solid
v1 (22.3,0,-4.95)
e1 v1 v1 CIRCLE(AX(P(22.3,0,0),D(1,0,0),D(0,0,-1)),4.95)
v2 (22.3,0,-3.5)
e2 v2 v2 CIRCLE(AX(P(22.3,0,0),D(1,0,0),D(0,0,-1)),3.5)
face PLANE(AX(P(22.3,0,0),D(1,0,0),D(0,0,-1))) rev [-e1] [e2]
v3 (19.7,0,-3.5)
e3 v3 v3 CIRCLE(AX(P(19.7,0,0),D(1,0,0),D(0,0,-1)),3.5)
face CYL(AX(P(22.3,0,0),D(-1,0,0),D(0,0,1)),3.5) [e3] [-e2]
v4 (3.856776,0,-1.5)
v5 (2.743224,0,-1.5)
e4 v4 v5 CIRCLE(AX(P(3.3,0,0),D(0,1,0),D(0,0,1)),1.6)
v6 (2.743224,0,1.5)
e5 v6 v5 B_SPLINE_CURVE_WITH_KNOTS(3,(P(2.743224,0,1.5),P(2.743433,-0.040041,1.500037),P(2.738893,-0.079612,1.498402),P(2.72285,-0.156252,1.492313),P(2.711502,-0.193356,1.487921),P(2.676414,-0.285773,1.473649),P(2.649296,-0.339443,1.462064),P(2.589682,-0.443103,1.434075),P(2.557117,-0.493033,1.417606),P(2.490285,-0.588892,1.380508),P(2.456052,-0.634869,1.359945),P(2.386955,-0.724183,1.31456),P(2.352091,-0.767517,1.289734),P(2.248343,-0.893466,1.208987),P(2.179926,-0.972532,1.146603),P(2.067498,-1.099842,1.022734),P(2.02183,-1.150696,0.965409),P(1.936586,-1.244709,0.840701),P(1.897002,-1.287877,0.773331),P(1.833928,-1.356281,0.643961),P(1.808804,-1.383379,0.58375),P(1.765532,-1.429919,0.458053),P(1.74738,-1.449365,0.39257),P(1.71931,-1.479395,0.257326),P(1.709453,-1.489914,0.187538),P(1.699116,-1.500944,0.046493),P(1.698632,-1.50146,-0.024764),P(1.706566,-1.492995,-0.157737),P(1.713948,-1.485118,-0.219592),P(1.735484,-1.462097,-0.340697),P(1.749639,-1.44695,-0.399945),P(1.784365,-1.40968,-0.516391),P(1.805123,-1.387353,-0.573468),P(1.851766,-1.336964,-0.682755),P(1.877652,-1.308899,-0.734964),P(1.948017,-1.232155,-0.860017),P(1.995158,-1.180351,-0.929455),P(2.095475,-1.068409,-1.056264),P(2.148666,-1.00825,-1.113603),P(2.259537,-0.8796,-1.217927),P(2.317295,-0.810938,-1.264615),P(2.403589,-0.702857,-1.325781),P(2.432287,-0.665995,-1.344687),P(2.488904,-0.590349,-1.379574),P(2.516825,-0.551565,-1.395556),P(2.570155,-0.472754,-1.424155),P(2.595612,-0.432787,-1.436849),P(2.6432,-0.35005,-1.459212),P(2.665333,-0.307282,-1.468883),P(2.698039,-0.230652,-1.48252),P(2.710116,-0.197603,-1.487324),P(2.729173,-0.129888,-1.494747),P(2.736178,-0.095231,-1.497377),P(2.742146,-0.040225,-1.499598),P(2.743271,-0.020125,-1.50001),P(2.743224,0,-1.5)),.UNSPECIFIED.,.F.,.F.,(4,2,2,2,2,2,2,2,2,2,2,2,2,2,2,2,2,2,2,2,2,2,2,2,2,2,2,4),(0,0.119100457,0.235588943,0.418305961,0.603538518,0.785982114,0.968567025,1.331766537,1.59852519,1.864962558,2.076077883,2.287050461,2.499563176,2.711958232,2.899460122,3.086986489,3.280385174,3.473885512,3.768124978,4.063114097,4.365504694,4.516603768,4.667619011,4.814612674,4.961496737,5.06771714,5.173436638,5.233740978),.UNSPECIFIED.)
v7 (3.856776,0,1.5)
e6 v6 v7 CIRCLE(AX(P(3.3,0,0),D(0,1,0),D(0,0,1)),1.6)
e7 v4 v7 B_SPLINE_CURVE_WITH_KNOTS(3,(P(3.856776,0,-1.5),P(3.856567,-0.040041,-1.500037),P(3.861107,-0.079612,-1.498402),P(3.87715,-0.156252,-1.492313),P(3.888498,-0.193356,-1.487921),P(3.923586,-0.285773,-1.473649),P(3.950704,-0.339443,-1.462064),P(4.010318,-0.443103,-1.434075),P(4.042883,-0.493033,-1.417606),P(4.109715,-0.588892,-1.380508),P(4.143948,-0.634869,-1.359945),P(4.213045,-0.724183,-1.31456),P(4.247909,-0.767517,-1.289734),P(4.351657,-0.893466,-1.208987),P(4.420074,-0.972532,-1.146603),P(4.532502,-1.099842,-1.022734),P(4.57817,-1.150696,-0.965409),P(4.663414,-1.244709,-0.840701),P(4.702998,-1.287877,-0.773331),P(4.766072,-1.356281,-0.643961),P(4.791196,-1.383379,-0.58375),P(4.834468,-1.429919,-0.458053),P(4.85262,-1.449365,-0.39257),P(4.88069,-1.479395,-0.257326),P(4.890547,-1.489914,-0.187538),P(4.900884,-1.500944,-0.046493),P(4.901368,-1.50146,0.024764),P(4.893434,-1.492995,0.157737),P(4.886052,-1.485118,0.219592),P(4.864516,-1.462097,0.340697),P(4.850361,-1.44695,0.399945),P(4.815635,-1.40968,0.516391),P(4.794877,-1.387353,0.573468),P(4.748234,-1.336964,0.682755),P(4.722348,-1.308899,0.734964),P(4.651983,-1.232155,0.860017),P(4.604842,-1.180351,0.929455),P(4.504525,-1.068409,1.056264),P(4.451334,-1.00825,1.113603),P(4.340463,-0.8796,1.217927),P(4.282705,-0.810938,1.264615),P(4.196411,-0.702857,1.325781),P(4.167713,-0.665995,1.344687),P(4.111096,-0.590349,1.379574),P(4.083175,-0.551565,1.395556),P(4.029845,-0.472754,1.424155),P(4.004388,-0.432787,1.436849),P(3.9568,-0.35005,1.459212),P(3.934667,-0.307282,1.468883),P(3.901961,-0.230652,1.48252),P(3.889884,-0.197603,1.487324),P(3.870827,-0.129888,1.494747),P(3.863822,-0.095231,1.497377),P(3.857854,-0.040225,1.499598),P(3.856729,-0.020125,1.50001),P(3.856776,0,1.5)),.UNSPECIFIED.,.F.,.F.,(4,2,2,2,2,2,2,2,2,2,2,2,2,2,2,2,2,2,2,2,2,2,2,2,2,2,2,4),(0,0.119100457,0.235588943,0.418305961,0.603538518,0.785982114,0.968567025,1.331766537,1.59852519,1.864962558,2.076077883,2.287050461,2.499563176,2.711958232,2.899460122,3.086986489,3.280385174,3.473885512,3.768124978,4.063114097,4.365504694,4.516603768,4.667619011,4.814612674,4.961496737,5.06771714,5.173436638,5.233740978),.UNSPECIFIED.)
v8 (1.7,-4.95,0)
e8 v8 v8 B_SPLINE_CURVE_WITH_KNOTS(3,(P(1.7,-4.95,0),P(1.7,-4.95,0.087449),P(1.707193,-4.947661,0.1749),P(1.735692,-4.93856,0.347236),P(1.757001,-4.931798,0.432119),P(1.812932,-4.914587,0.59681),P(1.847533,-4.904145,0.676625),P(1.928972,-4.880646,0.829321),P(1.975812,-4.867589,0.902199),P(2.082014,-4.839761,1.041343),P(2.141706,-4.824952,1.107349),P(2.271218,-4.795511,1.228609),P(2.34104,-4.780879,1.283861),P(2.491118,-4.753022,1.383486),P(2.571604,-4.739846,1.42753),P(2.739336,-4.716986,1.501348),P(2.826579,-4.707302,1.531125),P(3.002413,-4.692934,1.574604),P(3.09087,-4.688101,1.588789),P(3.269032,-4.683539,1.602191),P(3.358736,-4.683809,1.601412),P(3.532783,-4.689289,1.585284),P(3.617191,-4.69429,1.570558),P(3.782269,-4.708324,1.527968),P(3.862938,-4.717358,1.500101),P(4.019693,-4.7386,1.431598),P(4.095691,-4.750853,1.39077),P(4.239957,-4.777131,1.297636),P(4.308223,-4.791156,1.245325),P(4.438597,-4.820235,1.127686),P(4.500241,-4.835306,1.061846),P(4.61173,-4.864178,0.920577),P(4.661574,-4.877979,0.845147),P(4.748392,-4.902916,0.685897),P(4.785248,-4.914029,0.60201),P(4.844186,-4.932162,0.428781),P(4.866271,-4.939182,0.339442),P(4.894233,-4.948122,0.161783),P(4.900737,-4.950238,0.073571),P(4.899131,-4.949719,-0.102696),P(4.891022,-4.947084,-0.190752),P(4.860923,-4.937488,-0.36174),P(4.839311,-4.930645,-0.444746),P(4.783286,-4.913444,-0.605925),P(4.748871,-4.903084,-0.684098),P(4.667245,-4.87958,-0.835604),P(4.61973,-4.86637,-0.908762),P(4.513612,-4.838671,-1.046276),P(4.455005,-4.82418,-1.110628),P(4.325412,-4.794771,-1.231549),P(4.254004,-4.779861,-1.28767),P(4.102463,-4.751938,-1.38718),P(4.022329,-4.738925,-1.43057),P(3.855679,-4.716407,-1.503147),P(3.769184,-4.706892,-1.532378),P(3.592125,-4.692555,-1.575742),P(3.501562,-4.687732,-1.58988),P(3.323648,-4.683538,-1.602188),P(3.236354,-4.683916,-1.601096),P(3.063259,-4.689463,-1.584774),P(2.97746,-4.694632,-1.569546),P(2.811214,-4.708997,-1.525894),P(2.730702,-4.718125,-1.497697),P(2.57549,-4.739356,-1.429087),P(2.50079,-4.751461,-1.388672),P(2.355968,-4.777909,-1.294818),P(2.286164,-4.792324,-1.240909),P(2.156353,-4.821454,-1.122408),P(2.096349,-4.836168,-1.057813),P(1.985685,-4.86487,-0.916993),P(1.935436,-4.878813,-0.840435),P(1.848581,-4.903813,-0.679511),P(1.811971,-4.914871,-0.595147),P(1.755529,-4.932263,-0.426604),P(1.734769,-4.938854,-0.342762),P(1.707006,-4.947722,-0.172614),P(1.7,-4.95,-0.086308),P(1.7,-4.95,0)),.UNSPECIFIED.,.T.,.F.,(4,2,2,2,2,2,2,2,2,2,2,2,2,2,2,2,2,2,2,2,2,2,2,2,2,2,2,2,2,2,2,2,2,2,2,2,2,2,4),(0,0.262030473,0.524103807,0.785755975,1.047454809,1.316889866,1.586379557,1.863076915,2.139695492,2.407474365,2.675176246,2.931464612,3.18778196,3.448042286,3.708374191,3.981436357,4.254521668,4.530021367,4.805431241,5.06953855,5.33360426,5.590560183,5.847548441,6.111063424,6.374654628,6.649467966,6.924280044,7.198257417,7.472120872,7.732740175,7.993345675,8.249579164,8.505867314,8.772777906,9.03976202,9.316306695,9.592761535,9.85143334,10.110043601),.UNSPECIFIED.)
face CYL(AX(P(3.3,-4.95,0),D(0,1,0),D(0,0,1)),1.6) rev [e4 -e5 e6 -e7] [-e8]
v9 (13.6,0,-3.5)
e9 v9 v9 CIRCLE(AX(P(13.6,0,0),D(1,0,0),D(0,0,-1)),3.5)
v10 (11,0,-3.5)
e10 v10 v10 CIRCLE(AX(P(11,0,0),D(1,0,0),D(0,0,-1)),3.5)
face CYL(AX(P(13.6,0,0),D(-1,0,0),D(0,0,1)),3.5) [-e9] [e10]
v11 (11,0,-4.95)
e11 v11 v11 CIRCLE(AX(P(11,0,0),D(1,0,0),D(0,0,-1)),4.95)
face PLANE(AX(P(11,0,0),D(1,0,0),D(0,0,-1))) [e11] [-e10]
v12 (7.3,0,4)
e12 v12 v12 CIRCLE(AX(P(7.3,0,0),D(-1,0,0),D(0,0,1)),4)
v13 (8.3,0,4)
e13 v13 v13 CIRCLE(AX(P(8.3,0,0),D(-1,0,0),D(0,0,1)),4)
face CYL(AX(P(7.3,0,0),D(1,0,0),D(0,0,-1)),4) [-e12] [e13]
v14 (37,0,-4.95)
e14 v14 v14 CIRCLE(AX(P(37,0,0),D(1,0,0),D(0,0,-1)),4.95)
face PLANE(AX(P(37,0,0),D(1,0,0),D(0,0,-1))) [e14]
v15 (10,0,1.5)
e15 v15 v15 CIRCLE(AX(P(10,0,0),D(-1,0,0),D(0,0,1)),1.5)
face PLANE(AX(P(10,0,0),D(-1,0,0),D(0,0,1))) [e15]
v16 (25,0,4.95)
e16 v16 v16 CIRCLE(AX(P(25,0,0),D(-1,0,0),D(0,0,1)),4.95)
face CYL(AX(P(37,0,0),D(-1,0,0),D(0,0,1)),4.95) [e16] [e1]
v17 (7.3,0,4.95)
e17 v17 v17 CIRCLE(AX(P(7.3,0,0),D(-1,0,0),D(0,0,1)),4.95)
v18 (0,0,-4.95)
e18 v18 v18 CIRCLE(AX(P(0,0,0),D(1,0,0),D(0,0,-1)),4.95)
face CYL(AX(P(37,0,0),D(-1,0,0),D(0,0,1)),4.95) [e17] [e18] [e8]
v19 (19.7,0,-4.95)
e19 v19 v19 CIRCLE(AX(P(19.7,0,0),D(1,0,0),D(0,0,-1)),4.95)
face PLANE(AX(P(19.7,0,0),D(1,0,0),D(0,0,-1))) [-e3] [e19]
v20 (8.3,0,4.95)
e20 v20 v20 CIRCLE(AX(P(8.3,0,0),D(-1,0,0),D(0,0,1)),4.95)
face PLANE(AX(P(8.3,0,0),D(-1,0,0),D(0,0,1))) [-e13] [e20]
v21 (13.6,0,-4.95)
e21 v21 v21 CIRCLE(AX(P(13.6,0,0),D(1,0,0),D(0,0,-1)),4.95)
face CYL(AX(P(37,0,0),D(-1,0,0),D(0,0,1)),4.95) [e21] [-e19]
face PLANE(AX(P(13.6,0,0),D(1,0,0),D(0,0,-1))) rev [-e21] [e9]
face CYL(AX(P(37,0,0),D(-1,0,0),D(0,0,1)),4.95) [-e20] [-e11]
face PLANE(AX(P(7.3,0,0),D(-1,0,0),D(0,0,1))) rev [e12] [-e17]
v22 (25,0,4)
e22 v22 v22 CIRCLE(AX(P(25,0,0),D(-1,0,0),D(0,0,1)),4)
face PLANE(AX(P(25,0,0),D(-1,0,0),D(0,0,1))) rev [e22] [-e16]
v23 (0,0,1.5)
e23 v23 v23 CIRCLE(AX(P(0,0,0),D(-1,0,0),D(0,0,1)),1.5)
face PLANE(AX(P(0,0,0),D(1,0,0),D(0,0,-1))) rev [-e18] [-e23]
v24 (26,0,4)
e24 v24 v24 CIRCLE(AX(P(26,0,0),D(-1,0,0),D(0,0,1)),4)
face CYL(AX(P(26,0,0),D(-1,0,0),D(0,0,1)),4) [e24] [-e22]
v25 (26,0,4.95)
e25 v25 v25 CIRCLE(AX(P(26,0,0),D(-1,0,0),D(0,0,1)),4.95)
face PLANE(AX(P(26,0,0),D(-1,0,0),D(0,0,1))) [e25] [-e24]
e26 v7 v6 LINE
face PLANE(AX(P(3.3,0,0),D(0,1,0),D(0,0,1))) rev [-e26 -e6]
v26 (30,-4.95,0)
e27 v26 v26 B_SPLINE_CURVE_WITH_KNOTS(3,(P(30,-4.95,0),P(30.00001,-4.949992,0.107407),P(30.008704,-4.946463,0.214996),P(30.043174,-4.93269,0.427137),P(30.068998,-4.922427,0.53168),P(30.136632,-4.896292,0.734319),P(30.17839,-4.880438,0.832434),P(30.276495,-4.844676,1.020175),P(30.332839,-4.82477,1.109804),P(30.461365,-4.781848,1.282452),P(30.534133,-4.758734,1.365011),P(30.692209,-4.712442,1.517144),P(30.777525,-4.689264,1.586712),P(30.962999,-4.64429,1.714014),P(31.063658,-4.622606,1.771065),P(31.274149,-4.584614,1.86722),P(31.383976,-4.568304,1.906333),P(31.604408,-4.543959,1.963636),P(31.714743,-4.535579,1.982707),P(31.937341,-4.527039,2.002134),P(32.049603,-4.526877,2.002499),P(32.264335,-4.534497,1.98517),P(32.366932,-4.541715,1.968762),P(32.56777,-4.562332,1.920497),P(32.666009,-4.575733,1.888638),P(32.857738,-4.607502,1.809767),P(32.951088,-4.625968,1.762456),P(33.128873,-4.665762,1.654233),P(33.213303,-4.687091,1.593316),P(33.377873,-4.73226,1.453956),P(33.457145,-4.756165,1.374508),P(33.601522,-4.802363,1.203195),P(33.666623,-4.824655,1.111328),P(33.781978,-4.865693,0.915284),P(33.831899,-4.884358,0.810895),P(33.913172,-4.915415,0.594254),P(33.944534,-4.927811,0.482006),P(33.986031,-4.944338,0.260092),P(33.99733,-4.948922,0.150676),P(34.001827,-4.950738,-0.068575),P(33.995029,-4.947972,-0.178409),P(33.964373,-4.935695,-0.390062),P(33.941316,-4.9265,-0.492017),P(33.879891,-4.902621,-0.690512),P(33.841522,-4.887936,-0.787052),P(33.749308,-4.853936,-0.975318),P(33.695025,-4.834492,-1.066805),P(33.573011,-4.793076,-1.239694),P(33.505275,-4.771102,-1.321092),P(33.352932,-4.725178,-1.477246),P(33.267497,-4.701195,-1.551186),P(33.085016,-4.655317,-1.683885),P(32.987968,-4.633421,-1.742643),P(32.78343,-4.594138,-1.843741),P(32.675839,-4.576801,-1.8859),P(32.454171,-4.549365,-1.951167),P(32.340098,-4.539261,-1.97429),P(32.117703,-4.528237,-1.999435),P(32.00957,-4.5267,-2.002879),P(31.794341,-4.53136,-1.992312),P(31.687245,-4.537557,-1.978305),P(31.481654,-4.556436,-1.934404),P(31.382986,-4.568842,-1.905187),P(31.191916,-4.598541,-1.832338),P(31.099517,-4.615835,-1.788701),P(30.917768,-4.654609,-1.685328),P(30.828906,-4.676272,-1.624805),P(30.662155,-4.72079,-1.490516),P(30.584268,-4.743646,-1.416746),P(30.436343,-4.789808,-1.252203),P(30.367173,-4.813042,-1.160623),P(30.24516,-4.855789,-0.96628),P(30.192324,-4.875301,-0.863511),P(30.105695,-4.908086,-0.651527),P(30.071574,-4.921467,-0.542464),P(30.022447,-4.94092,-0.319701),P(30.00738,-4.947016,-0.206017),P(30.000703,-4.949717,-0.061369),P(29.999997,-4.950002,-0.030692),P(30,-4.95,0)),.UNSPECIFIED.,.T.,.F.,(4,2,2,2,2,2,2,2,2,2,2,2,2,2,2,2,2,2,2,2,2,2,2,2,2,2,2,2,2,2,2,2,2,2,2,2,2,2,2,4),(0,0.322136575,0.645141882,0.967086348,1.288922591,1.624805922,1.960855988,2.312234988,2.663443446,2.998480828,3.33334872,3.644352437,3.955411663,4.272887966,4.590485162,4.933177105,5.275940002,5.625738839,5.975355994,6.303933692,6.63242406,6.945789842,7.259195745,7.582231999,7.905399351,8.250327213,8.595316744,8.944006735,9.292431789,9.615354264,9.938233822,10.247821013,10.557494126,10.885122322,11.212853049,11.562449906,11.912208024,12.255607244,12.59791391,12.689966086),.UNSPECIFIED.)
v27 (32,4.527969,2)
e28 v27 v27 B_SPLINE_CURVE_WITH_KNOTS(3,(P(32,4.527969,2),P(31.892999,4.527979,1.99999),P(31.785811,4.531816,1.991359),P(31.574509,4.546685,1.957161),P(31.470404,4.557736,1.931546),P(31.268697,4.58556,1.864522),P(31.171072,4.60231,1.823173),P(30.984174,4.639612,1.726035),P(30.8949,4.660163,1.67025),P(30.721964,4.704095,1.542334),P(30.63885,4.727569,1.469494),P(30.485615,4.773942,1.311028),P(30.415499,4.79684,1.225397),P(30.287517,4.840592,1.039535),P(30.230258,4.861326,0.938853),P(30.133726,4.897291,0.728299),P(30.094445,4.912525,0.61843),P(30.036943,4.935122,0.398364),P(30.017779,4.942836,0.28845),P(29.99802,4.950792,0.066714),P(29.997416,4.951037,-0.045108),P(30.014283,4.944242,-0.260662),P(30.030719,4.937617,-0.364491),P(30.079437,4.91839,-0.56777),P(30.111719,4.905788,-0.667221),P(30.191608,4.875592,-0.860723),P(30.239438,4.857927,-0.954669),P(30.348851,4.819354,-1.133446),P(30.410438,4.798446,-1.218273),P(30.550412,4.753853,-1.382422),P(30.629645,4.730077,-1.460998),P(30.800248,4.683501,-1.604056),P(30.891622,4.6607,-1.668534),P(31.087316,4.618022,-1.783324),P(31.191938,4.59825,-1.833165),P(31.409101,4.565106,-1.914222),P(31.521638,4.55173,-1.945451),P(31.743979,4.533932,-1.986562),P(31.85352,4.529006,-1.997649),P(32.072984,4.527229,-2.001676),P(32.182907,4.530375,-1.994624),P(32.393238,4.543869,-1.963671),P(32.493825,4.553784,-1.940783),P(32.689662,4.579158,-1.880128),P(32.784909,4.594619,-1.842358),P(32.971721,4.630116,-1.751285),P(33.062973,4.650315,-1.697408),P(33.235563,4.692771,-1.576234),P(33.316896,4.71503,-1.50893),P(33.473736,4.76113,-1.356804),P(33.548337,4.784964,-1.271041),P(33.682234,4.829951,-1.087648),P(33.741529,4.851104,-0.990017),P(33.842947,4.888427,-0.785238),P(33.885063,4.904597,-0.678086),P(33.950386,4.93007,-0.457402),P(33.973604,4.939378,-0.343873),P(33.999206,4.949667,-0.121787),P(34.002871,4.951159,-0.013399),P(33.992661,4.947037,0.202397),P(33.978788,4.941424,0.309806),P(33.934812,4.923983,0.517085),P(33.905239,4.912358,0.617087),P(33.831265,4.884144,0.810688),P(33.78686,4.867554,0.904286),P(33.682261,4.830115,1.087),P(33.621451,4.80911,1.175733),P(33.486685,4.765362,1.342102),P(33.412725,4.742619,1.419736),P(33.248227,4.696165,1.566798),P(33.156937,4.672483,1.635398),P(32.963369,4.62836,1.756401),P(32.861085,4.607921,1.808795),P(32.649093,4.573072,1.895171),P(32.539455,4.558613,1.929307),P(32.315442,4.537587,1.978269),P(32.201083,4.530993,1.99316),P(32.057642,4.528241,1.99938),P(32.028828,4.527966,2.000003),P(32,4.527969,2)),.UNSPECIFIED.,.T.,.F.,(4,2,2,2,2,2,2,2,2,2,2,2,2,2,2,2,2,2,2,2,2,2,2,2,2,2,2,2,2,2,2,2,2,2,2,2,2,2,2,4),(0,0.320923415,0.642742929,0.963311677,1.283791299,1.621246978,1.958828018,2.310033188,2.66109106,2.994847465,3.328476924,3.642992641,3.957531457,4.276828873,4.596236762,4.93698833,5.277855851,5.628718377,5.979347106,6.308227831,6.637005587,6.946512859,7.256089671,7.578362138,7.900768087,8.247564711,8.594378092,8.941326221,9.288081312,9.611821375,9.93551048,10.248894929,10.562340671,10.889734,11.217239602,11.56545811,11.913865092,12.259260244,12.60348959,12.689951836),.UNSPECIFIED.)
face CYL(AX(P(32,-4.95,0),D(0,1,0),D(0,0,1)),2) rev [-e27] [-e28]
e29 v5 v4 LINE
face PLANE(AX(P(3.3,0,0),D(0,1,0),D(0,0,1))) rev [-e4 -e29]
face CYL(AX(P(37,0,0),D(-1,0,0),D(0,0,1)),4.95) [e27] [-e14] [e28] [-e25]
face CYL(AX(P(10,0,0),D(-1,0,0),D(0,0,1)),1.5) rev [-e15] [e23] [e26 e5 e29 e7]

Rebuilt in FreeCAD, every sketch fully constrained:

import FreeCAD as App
import Part
import Sketcher

V = App.Vector
Q = App.Units.Quantity

doc = App.newDocument("Part")
body = doc.addObject("PartDesign::Body", "Body")

sketch1 = body.newObject("Sketcher::SketchObject", "Sketch")
sketch1.AttachmentSupport = (doc.getObject("YZ_Plane"), [""])
sketch1.MapMode = "FlatFace"
sketch1.addGeometry(Part.Circle(V(0, 0, 0), V(0, 0, 1), 4.95), False)
sketch1.addConstraint([
    Sketcher.Constraint("Coincident", 0, 3, -1, 1),
    Sketcher.Constraint("Diameter", 0, Q("9.9 mm")),
])
pad1 = body.newObject("PartDesign::Pad", "Pad")
pad1.Profile = sketch1
pad1.Length = 37

sketch2 = body.newObject("Sketcher::SketchObject", "Sketch001")
sketch2.AttachmentSupport = (doc.getObject("YZ_Plane"), [""])
sketch2.MapMode = "FlatFace"
sketch2.AttachmentOffset = App.Placement(V(0, 0, 11), App.Rotation())
sketch2.addGeometry([
    Part.Circle(V(0, 0, 0), V(0, 0, 1), 4.95),
    Part.Circle(V(0, 0, 0), V(0, 0, 1), 3.5),
], False)
sketch2.addConstraint([
    Sketcher.Constraint("Coincident", 0, 3, -1, 1),
    Sketcher.Constraint("Coincident", 1, 3, -1, 1),
    Sketcher.Constraint("Diameter", 1, Q("7 mm")),
    Sketcher.Constraint("Diameter", 0, Q("9.9 mm")),
])
pocket1 = body.newObject("PartDesign::Pocket", "Pocket")
pocket1.Profile = sketch2
pocket1.Length = 2.6
pocket1.Reversed = True

sketch3 = body.newObject("Sketcher::SketchObject", "Sketch002")
sketch3.AttachmentSupport = (doc.getObject("YZ_Plane"), [""])
sketch3.MapMode = "FlatFace"
sketch3.AttachmentOffset = App.Placement(V(0, 0, 19.7), App.Rotation())
sketch3.addGeometry([
    Part.Circle(V(0, 0, 0), V(0, 0, 1), 4.95),
    Part.Circle(V(0, 0, 0), V(0, 0, 1), 3.5),
], False)
sketch3.addConstraint([
    Sketcher.Constraint("Coincident", 0, 3, -1, 1),
    Sketcher.Constraint("Coincident", 1, 3, -1, 1),
    Sketcher.Constraint("Diameter", 1, Q("7 mm")),
    Sketcher.Constraint("Diameter", 0, Q("9.9 mm")),
])
pocket2 = body.newObject("PartDesign::Pocket", "Pocket001")
pocket2.Profile = sketch3
pocket2.Length = 2.6
pocket2.Reversed = True

sketch4 = body.newObject("Sketcher::SketchObject", "Sketch003")
sketch4.AttachmentSupport = (doc.getObject("YZ_Plane"), [""])
sketch4.MapMode = "FlatFace"
sketch4.addGeometry(Part.Circle(V(0, 0, 0), V(0, 0, 1), 1.5), False)
sketch4.addConstraint([
    Sketcher.Constraint("Coincident", 0, 3, -1, 1),
    Sketcher.Constraint("Diameter", 0, Q("3 mm")),
])
pocket3 = body.newObject("PartDesign::Pocket", "Pocket002")
pocket3.Profile = sketch4
pocket3.Length = 10
pocket3.Reversed = True

sketch5 = body.newObject("Sketcher::SketchObject", "Sketch004")
sketch5.AttachmentSupport = (doc.getObject("XZ_Plane"), [""])
sketch5.MapMode = "FlatFace"
sketch5.addGeometry(Part.Circle(V(3.3, 0, 0), V(0, 0, 1), 1.6), False)
sketch5.addConstraint([
    Sketcher.Constraint("PointOnObject", 0, 3, -1),
    Sketcher.Constraint("Diameter", 0, Q("3.2 mm")),
    Sketcher.Constraint("DistanceX", -1, 1, 0, 3, Q("3.3 mm")),
])
pocket4 = body.newObject("PartDesign::Pocket", "Pocket003")
pocket4.Profile = sketch5
pocket4.Type = "ThroughAll"
pocket4.Reversed = True

sketch6 = body.newObject("Sketcher::SketchObject", "Sketch005")
sketch6.AttachmentSupport = (doc.getObject("YZ_Plane"), [""])
sketch6.MapMode = "FlatFace"
sketch6.AttachmentOffset = App.Placement(V(0, 0, 7.3), App.Rotation())
sketch6.addGeometry([
    Part.Circle(V(0, 0, 0), V(0, 0, 1), 4.95),
    Part.Circle(V(0, 0, 0), V(0, 0, 1), 4),
], False)
sketch6.addConstraint([
    Sketcher.Constraint("Coincident", 0, 3, -1, 1),
    Sketcher.Constraint("Coincident", 1, 3, -1, 1),
    Sketcher.Constraint("Diameter", 1, Q("8 mm")),
    Sketcher.Constraint("Diameter", 0, Q("9.9 mm")),
])
pocket5 = body.newObject("PartDesign::Pocket", "Pocket004")
pocket5.Profile = sketch6
pocket5.Length = 1
pocket5.Reversed = True

sketch7 = body.newObject("Sketcher::SketchObject", "Sketch006")
sketch7.AttachmentSupport = (doc.getObject("YZ_Plane"), [""])
sketch7.MapMode = "FlatFace"
sketch7.AttachmentOffset = App.Placement(V(0, 0, 25), App.Rotation())
sketch7.addGeometry([
    Part.Circle(V(0, 0, 0), V(0, 0, 1), 4.95),
    Part.Circle(V(0, 0, 0), V(0, 0, 1), 4),
], False)
sketch7.addConstraint([
    Sketcher.Constraint("Coincident", 0, 3, -1, 1),
    Sketcher.Constraint("Coincident", 1, 3, -1, 1),
    Sketcher.Constraint("Diameter", 1, Q("8 mm")),
    Sketcher.Constraint("Diameter", 0, Q("9.9 mm")),
])
pocket6 = body.newObject("PartDesign::Pocket", "Pocket005")
pocket6.Profile = sketch7
pocket6.Length = 1
pocket6.Reversed = True

sketch8 = body.newObject("Sketcher::SketchObject", "Sketch007")
sketch8.AttachmentSupport = (doc.getObject("XZ_Plane"), [""])
sketch8.MapMode = "FlatFace"
sketch8.addGeometry(Part.Circle(V(32, 0, 0), V(0, 0, 1), 2), False)
sketch8.addConstraint([
    Sketcher.Constraint("PointOnObject", 0, 3, -1),
    Sketcher.Constraint("Diameter", 0, Q("4 mm")),
    Sketcher.Constraint("DistanceX", -1, 1, 0, 3, Q("32 mm")),
])
pocket7 = body.newObject("PartDesign::Pocket", "Pocket006")
pocket7.Profile = sketch8
pocket7.Type = "ThroughAll"
pocket7.Midplane = True

doc.recompute()
